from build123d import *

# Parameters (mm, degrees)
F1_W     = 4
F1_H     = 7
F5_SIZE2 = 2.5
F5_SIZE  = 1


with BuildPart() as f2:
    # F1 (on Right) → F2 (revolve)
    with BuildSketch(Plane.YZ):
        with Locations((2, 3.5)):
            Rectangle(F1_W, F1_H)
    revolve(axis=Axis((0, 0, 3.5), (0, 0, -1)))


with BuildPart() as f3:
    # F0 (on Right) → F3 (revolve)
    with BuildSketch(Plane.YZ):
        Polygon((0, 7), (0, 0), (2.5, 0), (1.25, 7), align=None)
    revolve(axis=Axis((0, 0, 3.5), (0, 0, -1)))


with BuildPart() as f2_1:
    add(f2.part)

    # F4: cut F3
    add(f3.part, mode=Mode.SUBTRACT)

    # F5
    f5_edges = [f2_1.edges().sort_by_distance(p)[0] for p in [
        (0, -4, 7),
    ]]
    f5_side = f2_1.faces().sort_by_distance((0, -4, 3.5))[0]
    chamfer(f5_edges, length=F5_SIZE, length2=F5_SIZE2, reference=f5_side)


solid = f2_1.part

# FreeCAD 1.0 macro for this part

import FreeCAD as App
import Part
import Sketcher

V = App.Vector


def edges_at(feature, points):
    """Names of the edges that pass closest to the given points."""
    edges = feature.Shape.Edges
    near = lambda p: min(range(len(edges)), key=lambda i: edges[i].distToShape(Part.Vertex(*p))[0])
    return sorted({f"Edge{near(p) + 1}" for p in points})

doc = App.newDocument("Part")
body = doc.addObject("PartDesign::Body", "Body")

# Sketch on YZ plane
sketch1 = body.newObject("Sketcher::SketchObject", "Sketch")
sketch1.AttachmentSupport = (doc.getObject("YZ_Plane"), [""])
sketch1.MapMode = "FlatFace"
sketch1.addGeometry([
    Part.LineSegment(V(0, 7, 0), V(0, 0, 0)),
    Part.LineSegment(V(0, 0, 0), V(4, 0, 0)),
    Part.LineSegment(V(4, 0, 0), V(4, 7, 0)),
    Part.LineSegment(V(4, 7, 0), V(0, 7, 0)),
], False)
sketch1.addConstraint([
    Sketcher.Constraint("Coincident", 0, 2, 1, 1),
    Sketcher.Constraint("Coincident", 1, 2, 2, 1),
    Sketcher.Constraint("Coincident", 2, 2, 3, 1),
    Sketcher.Constraint("Coincident", 3, 2, 0, 1),
    Sketcher.Constraint("Vertical", 0),
    Sketcher.Constraint("Horizontal", 1),
    Sketcher.Constraint("Vertical", 2),
    Sketcher.Constraint("Horizontal", 3),
    Sketcher.Constraint("Coincident", 0, 2, -1, 1),
    Sketcher.Constraint("DistanceX", 1, 1, 1, 2, 4.0),
    Sketcher.Constraint("DistanceY", 0, 2, 0, 1, 7.0),
])
revolution = body.newObject("PartDesign::Revolution", "Revolution")
revolution.Profile = sketch1
revolution.ReferenceAxis = (sketch1, ["V_Axis"])
revolution.Angle = 360
body2 = doc.addObject("PartDesign::Body", "Body001")

# Sketch on YZ plane
sketch2 = body2.newObject("Sketcher::SketchObject", "Sketch001")
sketch2.AttachmentSupport = (doc.getObject("YZ_Plane001"), [""])
sketch2.MapMode = "FlatFace"
sketch2.addGeometry([
    Part.LineSegment(V(0, 7, 0), V(0, 0, 0)),
    Part.LineSegment(V(0, 0, 0), V(2.5, 0, 0)),
    Part.LineSegment(V(2.5, 0, 0), V(1.2, 7, 0)),
    Part.LineSegment(V(1.2, 7, 0), V(0, 7, 0)),
], False)
sketch2.addConstraint([
    Sketcher.Constraint("Coincident", 0, 2, 1, 1),
    Sketcher.Constraint("Coincident", 1, 2, 2, 1),
    Sketcher.Constraint("Coincident", 2, 2, 3, 1),
    Sketcher.Constraint("Coincident", 3, 2, 0, 1),
    Sketcher.Constraint("Vertical", 0),
    Sketcher.Constraint("Horizontal", 1),
    Sketcher.Constraint("Horizontal", 3),
    Sketcher.Constraint("Coincident", 0, 2, -1, 1),
    Sketcher.Constraint("DistanceY", 0, 2, 0, 1, 7.0),
    Sketcher.Constraint("DistanceX", 1, 1, 1, 2, 2.5),
    Sketcher.Constraint("DistanceX", 3, 2, 3, 1, 1.25),
])
revolution2 = body2.newObject("PartDesign::Revolution", "Revolution001")
revolution2.Profile = sketch2
revolution2.ReferenceAxis = (sketch2, ["V_Axis"])
revolution2.Angle = 360
doc.recompute()

boolean = body.newObject("PartDesign::Boolean", "Boolean")
boolean.Type = "Cut"
boolean.addObjects([body2])
doc.recompute()

chamfer = body.newObject("PartDesign::Chamfer", "Chamfer")
chamfer.Base = (boolean, edges_at(boolean, [(0, -4, 7)]))
chamfer.ChamferType = "Two distances"
chamfer.Size = 1
chamfer.Size2 = 2.5

doc.recompute()
